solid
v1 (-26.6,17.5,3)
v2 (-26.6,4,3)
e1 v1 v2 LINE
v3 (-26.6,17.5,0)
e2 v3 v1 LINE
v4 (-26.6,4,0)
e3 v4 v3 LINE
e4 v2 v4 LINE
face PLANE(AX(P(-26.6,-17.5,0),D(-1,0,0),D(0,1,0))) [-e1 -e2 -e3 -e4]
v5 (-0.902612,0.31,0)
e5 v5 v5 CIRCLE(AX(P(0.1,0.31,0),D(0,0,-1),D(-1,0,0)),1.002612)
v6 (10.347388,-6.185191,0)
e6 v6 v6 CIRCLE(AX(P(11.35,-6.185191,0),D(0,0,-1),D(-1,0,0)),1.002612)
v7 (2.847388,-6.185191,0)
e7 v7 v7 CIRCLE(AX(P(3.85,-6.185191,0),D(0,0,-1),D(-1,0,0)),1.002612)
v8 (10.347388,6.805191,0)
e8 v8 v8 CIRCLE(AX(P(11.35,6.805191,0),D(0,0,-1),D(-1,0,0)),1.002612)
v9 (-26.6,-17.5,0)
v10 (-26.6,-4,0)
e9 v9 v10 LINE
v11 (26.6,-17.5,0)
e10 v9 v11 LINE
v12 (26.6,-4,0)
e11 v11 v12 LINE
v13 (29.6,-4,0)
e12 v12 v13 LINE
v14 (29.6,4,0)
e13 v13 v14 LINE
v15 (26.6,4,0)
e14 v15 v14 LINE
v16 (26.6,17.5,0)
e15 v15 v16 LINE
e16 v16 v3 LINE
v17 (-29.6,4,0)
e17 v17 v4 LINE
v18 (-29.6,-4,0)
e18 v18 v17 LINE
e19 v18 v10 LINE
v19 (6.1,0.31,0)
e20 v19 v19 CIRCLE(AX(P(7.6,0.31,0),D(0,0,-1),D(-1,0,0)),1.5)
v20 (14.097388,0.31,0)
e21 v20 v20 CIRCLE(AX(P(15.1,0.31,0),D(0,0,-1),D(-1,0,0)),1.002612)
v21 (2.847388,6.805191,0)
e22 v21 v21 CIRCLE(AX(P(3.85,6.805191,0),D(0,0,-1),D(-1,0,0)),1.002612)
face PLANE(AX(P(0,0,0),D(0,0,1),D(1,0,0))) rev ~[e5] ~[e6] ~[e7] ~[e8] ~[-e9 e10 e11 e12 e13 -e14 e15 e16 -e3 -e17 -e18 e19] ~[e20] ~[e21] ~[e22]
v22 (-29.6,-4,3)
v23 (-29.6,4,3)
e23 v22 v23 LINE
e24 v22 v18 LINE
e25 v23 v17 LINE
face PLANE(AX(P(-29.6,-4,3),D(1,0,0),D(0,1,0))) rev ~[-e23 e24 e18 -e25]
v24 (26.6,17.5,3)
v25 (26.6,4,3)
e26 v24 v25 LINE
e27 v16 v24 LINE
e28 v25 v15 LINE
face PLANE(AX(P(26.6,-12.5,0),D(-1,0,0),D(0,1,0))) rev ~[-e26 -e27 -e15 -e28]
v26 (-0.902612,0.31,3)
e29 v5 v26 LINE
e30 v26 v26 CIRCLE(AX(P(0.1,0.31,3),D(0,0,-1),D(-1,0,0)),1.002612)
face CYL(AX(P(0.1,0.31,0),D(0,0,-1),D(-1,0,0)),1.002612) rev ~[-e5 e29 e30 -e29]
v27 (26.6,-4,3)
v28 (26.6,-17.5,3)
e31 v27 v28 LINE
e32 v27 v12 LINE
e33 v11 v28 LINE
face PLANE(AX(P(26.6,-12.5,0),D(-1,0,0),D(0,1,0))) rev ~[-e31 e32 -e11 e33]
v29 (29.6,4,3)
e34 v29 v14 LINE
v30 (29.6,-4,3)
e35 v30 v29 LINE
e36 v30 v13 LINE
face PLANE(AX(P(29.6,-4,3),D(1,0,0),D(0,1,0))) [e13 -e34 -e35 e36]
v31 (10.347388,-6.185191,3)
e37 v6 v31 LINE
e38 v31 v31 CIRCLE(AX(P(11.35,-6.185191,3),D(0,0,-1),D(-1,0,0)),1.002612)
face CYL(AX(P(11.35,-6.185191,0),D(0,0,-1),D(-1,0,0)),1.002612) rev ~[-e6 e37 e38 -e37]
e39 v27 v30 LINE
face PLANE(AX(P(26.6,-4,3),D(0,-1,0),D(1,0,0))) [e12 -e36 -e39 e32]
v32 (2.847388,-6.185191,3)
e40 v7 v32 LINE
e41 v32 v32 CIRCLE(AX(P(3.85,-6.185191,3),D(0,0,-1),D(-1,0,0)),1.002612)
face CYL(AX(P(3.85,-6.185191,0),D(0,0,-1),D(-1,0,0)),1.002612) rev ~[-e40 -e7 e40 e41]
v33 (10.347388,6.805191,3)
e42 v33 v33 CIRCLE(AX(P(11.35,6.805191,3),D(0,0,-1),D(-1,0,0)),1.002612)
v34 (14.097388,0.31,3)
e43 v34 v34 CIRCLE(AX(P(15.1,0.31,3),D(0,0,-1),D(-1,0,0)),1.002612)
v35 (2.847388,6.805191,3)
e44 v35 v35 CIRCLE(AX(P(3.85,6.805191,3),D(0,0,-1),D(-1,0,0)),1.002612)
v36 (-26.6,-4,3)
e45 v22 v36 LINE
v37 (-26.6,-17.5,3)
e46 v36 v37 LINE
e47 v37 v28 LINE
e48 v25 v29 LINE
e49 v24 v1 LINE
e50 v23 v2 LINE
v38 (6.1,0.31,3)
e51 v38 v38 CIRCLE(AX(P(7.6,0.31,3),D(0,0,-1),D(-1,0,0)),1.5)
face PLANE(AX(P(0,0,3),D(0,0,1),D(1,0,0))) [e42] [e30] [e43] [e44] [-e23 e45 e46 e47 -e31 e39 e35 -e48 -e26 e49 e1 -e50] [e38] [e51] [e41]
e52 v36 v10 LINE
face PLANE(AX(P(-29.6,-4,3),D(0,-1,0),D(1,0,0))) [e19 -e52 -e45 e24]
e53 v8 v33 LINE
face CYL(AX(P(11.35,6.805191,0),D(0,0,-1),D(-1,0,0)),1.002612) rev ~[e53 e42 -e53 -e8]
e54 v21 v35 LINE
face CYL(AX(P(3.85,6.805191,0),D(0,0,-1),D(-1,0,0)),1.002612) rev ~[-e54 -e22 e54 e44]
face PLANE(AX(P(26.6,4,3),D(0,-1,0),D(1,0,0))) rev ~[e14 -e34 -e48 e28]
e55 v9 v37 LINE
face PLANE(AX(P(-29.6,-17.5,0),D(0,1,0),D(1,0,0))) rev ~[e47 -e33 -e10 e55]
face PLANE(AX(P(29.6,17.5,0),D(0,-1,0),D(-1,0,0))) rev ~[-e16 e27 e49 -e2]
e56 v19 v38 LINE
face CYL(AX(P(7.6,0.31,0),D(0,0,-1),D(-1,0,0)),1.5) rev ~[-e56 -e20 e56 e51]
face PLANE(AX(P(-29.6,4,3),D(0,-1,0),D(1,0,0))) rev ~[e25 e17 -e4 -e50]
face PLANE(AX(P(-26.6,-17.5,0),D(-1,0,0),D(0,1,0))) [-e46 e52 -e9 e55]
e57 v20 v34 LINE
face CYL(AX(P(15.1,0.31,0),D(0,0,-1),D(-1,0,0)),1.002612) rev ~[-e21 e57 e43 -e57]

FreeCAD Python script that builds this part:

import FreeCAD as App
import Part
import Sketcher
from FreeCAD import Vector
Q = App.Units.Quantity


def add_polygon(sketch, points):
    """Adds a closed chain of lines whose ends are joined by coincident constraints."""
    first, n = sketch.GeometryCount, len(points)
    for a, b in zip(points, points[1:] + points[:1]):
        sketch.addGeometry(Part.LineSegment(App.Vector(*a, 0), App.Vector(*b, 0)), False)
    for i in range(n):
        sketch.addConstraint(Sketcher.Constraint("Coincident", first + i, 2, first + (i + 1) % n, 1))

doc = App.newDocument("Part")
body = doc.addObject("PartDesign::Body", "Body")

sketch1 = body.newObject("Sketcher::SketchObject", "Sketch")
sketch1.AttachmentSupport = (doc.getObject("XY_Plane"), [""])
sketch1.MapMode = "FlatFace"
add_polygon(sketch1, [(29.6, -12.5), (26.6, -12.5), (26.6, -7.5), (29.6, -7.5), (29.6, -2.5), (26.6, -2.5), (26.6, 2.5), (29.6, 2.5), (29.6, 7.5), (26.6, 7.5), (26.6, 12.5), (29.6, 12.5), (29.6, 17.5), (-29.6, 17.5), (-29.6, 12.5), (-26.6, 12.5), (-26.6, 7.5), (-29.6, 7.5), (-29.6, 2.5), (-26.6, 2.5), (-26.6, -2.5), (-29.6, -2.5), (-29.6, -7.5), (-26.6, -7.5), (-26.6, -12.5), (-29.6, -12.5), (-29.6, -17.5), (29.6, -17.5)])
sketch1.addConstraint([
    Sketcher.Constraint("Horizontal", 0),
    Sketcher.Constraint("Vertical", 1),
    Sketcher.Constraint("Horizontal", 2),
    Sketcher.Constraint("Vertical", 3),
    Sketcher.Constraint("Horizontal", 4),
    Sketcher.Constraint("Vertical", 5),
    Sketcher.Constraint("Horizontal", 6),
    Sketcher.Constraint("Vertical", 7),
    Sketcher.Constraint("Horizontal", 8),
    Sketcher.Constraint("Vertical", 9),
    Sketcher.Constraint("Horizontal", 10),
    Sketcher.Constraint("Vertical", 11),
    Sketcher.Constraint("Horizontal", 12),
    Sketcher.Constraint("Vertical", 13),
    Sketcher.Constraint("Horizontal", 14),
    Sketcher.Constraint("Vertical", 15),
    Sketcher.Constraint("Horizontal", 16),
    Sketcher.Constraint("Vertical", 17),
    Sketcher.Constraint("Horizontal", 18),
    Sketcher.Constraint("Vertical", 19),
    Sketcher.Constraint("Horizontal", 20),
    Sketcher.Constraint("Vertical", 21),
    Sketcher.Constraint("Horizontal", 22),
    Sketcher.Constraint("Vertical", 23),
    Sketcher.Constraint("Horizontal", 24),
    Sketcher.Constraint("Vertical", 25),
    Sketcher.Constraint("Horizontal", 26),
    Sketcher.Constraint("Vertical", 27),
    Sketcher.Constraint("Symmetric", 0, 2, 14, 2, -1, 1),
    Sketcher.Constraint("Symmetric", 2, 2, 16, 2, -1, 1),
    Sketcher.Constraint("Symmetric", 4, 2, 18, 2, -1, 1),
    Sketcher.Constraint("Symmetric", 6, 2, 20, 2, -1, 1),
    Sketcher.Constraint("Symmetric", 8, 2, 22, 2, -1, 1),
    Sketcher.Constraint("Symmetric", 10, 2, 24, 2, -1, 1),
    Sketcher.Constraint("Symmetric", 12, 2, 26, 2, -1, 1),
    Sketcher.Constraint("Symmetric", 10, 2, 13, 2, -2),
    Sketcher.Constraint("Symmetric", 8, 2, 15, 2, -2),
    Sketcher.Constraint("Symmetric", 6, 2, 17, 2, -2),
    Sketcher.Constraint("Vertical", 1, 2, 4, 2),
    Sketcher.Constraint("Vertical", 7, 2, 10, 2),
    Sketcher.Constraint("Equal", 1, 3),
    Sketcher.Constraint("Equal", 3, 5),
    Sketcher.Constraint("Equal", 9, 11),
    Sketcher.Constraint("DistanceX", 0, 2, 0, 1, Q("3 mm")),
    Sketcher.Constraint("DistanceY", 1, 1, 1, 2, Q("5 mm")),
    Sketcher.Constraint("DistanceX", 12, 2, 12, 1, Q("59.2 mm")),
])
pad1 = body.newObject("PartDesign::Pad", "Pad")
pad1.Profile = sketch1
pad1.Length = 3

sketch2 = body.newObject("Sketcher::SketchObject", "Sketch001")
sketch2.AttachmentSupport = (doc.getObject("XY_Plane"), [""])
sketch2.MapMode = "FlatFace"
sketch2.addGeometry(Part.Circle(Vector(7.6, 0.3, 0), Vector(0, 0, 1), 1.5), False)
sketch2.addConstraint([
    Sketcher.Constraint("Diameter", 0, Q("3 mm")),
    Sketcher.Constraint("DistanceX", -1, 1, 0, 3, Q("7.6 mm")),
    Sketcher.Constraint("DistanceY", -1, 1, 0, 3, Q("0.31 mm")),
])
pocket1 = body.newObject("PartDesign::Pocket", "Pocket")
pocket1.Profile = sketch2
pocket1.Type = "UpToFirst"
pocket1.Reversed = True

sketch3 = body.newObject("Sketcher::SketchObject", "Sketch002")
sketch3.AttachmentSupport = (doc.getObject("XY_Plane"), [""])
sketch3.MapMode = "FlatFace"
sketch3.addGeometry(Part.Circle(Vector(15.1, 0.3, 0), Vector(0, 0, 1), 1), False)
sketch3.addConstraint([
    Sketcher.Constraint("DistanceX", -1, 1, 0, 3, Q("15.1 mm")),
    Sketcher.Constraint("DistanceY", -1, 1, 0, 3, Q("0.31 mm")),
    Sketcher.Constraint("Diameter", 0, Q("2.005225 mm")),
])
pocket2 = body.newObject("PartDesign::Pocket", "Pocket001")
pocket2.Profile = sketch3
pocket2.Type = "UpToFirst"
pocket2.Reversed = True

sketch4 = body.newObject("Sketcher::SketchObject", "Sketch003")
sketch4.AttachmentSupport = (doc.getObject("XY_Plane"), [""])
sketch4.MapMode = "FlatFace"
sketch4.addGeometry(Part.Circle(Vector(11.3, 6.8, 0), Vector(0, 0, 1), 1), False)
sketch4.addConstraint([
    Sketcher.Constraint("DistanceX", -1, 1, 0, 3, Q("11.35 mm")),
    Sketcher.Constraint("Diameter", 0, Q("2.005225 mm")),
    Sketcher.Constraint("DistanceY", -1, 1, 0, 3, Q("6.805191 mm")),
])
pocket3 = body.newObject("PartDesign::Pocket", "Pocket002")
pocket3.Profile = sketch4
pocket3.Type = "UpToFirst"
pocket3.Reversed = True

sketch5 = body.newObject("Sketcher::SketchObject", "Sketch004")
sketch5.AttachmentSupport = (doc.getObject("XY_Plane"), [""])
sketch5.MapMode = "FlatFace"
sketch5.addGeometry(Part.Circle(Vector(3.9, 6.8, 0), Vector(0, 0, 1), 1), False)
sketch5.addConstraint([
    Sketcher.Constraint("DistanceX", -1, 1, 0, 3, Q("3.85 mm")),
    Sketcher.Constraint("Diameter", 0, Q("2.005225 mm")),
    Sketcher.Constraint("DistanceY", -1, 1, 0, 3, Q("6.805191 mm")),
])
pocket4 = body.newObject("PartDesign::Pocket", "Pocket003")
pocket4.Profile = sketch5
pocket4.Type = "UpToFirst"
pocket4.Reversed = True

sketch6 = body.newObject("Sketcher::SketchObject", "Sketch005")
sketch6.AttachmentSupport = (doc.getObject("XY_Plane"), [""])
sketch6.MapMode = "FlatFace"
sketch6.addGeometry(Part.Circle(Vector(0.1, 0.3, 0), Vector(0, 0, 1), 1), False)
sketch6.addConstraint([
    Sketcher.Constraint("DistanceX", -1, 1, 0, 3, Q("0.1 mm")),
    Sketcher.Constraint("DistanceY", -1, 1, 0, 3, Q("0.31 mm")),
    Sketcher.Constraint("Diameter", 0, Q("2.005225 mm")),
])
pocket5 = body.newObject("PartDesign::Pocket", "Pocket004")
pocket5.Profile = sketch6
pocket5.Type = "UpToFirst"
pocket5.Reversed = True

sketch7 = body.newObject("Sketcher::SketchObject", "Sketch006")
sketch7.AttachmentSupport = (doc.getObject("XY_Plane"), [""])
sketch7.MapMode = "FlatFace"
sketch7.addGeometry(Part.Circle(Vector(3.9, -6.2, 0), Vector(0, 0, 1), 1), False)
sketch7.addConstraint([
    Sketcher.Constraint("DistanceX", -1, 1, 0, 3, Q("3.85 mm")),
    Sketcher.Constraint("Diameter", 0, Q("2.005225 mm")),
    Sketcher.Constraint("DistanceY", 0, 3, -1, 1, Q("6.185191 mm")),
])
pocket6 = body.newObject("PartDesign::Pocket", "Pocket005")
pocket6.Profile = sketch7
pocket6.Type = "UpToFirst"
pocket6.Reversed = True

sketch8 = body.newObject("Sketcher::SketchObject", "Sketch007")
sketch8.AttachmentSupport = (doc.getObject("XY_Plane"), [""])
sketch8.MapMode = "FlatFace"
sketch8.addGeometry(Part.Circle(Vector(11.3, -6.2, 0), Vector(0, 0, 1), 1), False)
sketch8.addConstraint([
    Sketcher.Constraint("DistanceX", -1, 1, 0, 3, Q("11.35 mm")),
    Sketcher.Constraint("Diameter", 0, Q("2.005225 mm")),
    Sketcher.Constraint("DistanceY", 0, 3, -1, 1, Q("6.185191 mm")),
])
pocket7 = body.newObject("PartDesign::Pocket", "Pocket006")
pocket7.Profile = sketch8
pocket7.Type = "UpToFirst"
pocket7.Reversed = True

sketch9 = body.newObject("Sketcher::SketchObject", "Sketch008")
sketch9.AttachmentSupport = (doc.getObject("XY_Plane"), [""])
sketch9.MapMode = "FlatFace"
add_polygon(sketch9, [(-29.6, 17.5), (-29.6, -17.5), (-26.6, -17.5), (-26.6, 17.5)])
add_polygon(sketch9, [(26.6, 17.5), (26.6, -17.5), (29.6, -17.5), (29.6, 17.5)])
sketch9.addConstraint([
    Sketcher.Constraint("Vertical", 0),
    Sketcher.Constraint("Horizontal", 1),
    Sketcher.Constraint("Vertical", 2),
    Sketcher.Constraint("Horizontal", 3),
    Sketcher.Constraint("Vertical", 4),
    Sketcher.Constraint("Horizontal", 5),
    Sketcher.Constraint("Vertical", 6),
    Sketcher.Constraint("Horizontal", 7),
    Sketcher.Constraint("Symmetric", 2, 2, 4, 2, -1, 1),
    Sketcher.Constraint("Symmetric", 0, 2, 6, 2, -1, 1),
    Sketcher.Constraint("Horizontal", 1, 2, 4, 2),
    Sketcher.Constraint("DistanceX", 1, 1, 1, 2, Q("3 mm")),
    Sketcher.Constraint("DistanceY", 0, 2, 0, 1, Q("35 mm")),
    Sketcher.Constraint("DistanceX", 0, 2, -1, 1, Q("29.6 mm")),
])
pocket8 = body.newObject("PartDesign::Pocket", "Pocket007")
pocket8.Profile = sketch9
pocket8.Length = 3
pocket8.Reversed = True

sketch10 = body.newObject("Sketcher::SketchObject", "Sketch009")
sketch10.AttachmentSupport = (doc.getObject("XY_Plane"), [""])
sketch10.MapMode = "FlatFace"
sketch10.AttachmentOffset = App.Placement(Vector(0, 0, 3), App.Rotation())
add_polygon(sketch10, [(26.6, 4), (26.6, -4), (29.6, -4), (29.6, 4)])
add_polygon(sketch10, [(-29.6, 4), (-29.6, -4), (-26.6, -4), (-26.6, 4)])
sketch10.addConstraint([
    Sketcher.Constraint("Vertical", 0),
    Sketcher.Constraint("Horizontal", 1),
    Sketcher.Constraint("Vertical", 2),
    Sketcher.Constraint("Horizontal", 3),
    Sketcher.Constraint("Vertical", 4),
    Sketcher.Constraint("Horizontal", 5),
    Sketcher.Constraint("Vertical", 6),
    Sketcher.Constraint("Horizontal", 7),
    Sketcher.Constraint("Symmetric", 2, 2, 4, 2, -1, 1),
    Sketcher.Constraint("Symmetric", 0, 2, 6, 2, -1, 1),
    Sketcher.Constraint("Horizontal", 1, 2, 4, 2),
    Sketcher.Constraint("DistanceX", 1, 1, 1, 2, Q("3 mm")),
    Sketcher.Constraint("DistanceY", 0, 2, 0, 1, Q("8 mm")),
    Sketcher.Constraint("DistanceX", -1, 1, 0, 2, Q("26.6 mm")),
])
pad2 = body.newObject("PartDesign::Pad", "Pad001")
pad2.Profile = sketch10
pad2.Length = 3
pad2.Reversed = True

doc.recompute()
